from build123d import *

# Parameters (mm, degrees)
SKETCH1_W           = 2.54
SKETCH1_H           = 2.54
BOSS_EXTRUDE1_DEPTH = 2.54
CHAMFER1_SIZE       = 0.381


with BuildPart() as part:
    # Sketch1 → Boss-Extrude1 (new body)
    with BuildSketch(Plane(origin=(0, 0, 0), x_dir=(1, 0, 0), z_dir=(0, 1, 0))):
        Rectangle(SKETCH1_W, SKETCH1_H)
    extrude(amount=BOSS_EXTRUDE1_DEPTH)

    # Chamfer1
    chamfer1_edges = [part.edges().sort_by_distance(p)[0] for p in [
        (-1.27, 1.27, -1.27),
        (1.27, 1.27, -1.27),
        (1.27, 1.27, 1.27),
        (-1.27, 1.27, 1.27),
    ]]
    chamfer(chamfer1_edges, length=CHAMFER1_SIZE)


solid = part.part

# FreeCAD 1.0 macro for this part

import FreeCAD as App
import Part
import Sketcher
Q = App.Units.Quantity


def edges_at(feature, points):
    """Names of the edges that pass closest to the given points."""
    edges = feature.Shape.Edges
    near = lambda p: min(range(len(edges)), key=lambda i: edges[i].distToShape(Part.Vertex(*p))[0])
    return sorted({f"Edge{near(p) + 1}" for p in points})

doc = App.newDocument("Part")
body = doc.addObject("PartDesign::Body", "Body")

sketch1 = doc.addObject("Sketcher::SketchObject", "Sketch")
body.addObject(sketch1)
sketch1.AttachmentSupport = (doc.XZ_Plane, [""])
sketch1.MapMode = "FlatFace"
sketch1.addGeometry(Part.LineSegment(App.Vector(-1.27, -1.27, 0), App.Vector(-1.27, 1.27, 0)), False)
sketch1.addGeometry(Part.LineSegment(App.Vector(-1.27, 1.27, 0), App.Vector(1.27, 1.27, 0)), False)
sketch1.addGeometry(Part.LineSegment(App.Vector(1.27, 1.27, 0), App.Vector(1.27, -1.27, 0)), False)
sketch1.addGeometry(Part.LineSegment(App.Vector(1.27, -1.27, 0), App.Vector(-1.27, -1.27, 0)), False)
sketch1.addConstraint(Sketcher.Constraint("Coincident", 0, 2, 1, 1))
sketch1.addConstraint(Sketcher.Constraint("Coincident", 1, 2, 2, 1))
sketch1.addConstraint(Sketcher.Constraint("Coincident", 2, 2, 3, 1))
sketch1.addConstraint(Sketcher.Constraint("Coincident", 3, 2, 0, 1))
sketch1.addConstraint(Sketcher.Constraint("Vertical", 0))
sketch1.addConstraint(Sketcher.Constraint("Horizontal", 1))
sketch1.addConstraint(Sketcher.Constraint("Vertical", 2))
sketch1.addConstraint(Sketcher.Constraint("Horizontal", 3))
sketch1.addConstraint(Sketcher.Constraint("Symmetric", 0, 2, 2, 2, -1, 1))
sketch1.addConstraint(Sketcher.Constraint("Equal", 3, 0))
sketch1.addConstraint(Sketcher.Constraint("DistanceX", 1, 1, 1, 2, Q("0.1 in")))
pad1 = doc.addObject("PartDesign::Pad", "Pad")
body.addObject(pad1)
pad1.Profile = sketch1
pad1.Length = Q("0.1 in")
pad1.Reversed = True
doc.recompute()

chamfer = doc.addObject("PartDesign::Chamfer", "Chamfer")
body.addObject(chamfer)
chamfer.Base = (pad1, edges_at(pad1, [
    (-1.27, 1.27, -1.27),
    (1.27, 1.27, -1.27),
    (1.27, 1.27, 1.27),
    (-1.27, 1.27, 1.27),
]))
chamfer.Size = Q("0.015 in")

doc.recompute()
